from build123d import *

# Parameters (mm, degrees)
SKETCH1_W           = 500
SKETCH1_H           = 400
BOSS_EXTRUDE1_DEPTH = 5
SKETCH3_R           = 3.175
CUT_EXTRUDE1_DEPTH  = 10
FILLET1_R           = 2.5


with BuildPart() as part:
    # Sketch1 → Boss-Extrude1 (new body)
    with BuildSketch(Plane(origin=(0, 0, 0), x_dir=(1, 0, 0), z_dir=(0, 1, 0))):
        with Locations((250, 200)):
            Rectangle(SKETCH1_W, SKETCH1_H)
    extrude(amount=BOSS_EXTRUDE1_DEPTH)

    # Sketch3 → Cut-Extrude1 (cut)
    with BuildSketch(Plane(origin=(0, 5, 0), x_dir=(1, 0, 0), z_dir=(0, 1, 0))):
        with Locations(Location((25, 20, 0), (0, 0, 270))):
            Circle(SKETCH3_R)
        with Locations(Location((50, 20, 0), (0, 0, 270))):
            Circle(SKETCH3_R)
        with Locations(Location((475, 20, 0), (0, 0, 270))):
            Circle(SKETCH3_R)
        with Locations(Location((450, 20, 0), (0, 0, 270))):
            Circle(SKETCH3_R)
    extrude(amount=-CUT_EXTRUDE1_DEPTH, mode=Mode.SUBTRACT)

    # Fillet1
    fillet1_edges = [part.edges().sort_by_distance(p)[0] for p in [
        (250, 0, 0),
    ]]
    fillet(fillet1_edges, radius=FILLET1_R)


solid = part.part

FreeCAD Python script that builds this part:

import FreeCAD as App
import Part
import Sketcher

V = App.Vector
Q = App.Units.Quantity


def edges_at(feature, points):
    """Names of the edges that pass closest to the given points."""
    edges = feature.Shape.Edges
    near = lambda p: min(range(len(edges)), key=lambda i: edges[i].distToShape(Part.Vertex(*p))[0])
    return sorted({f"Edge{near(p) + 1}" for p in points})


def add_polygon(sketch, points):
    """Adds a closed chain of lines whose ends are joined by coincident constraints."""
    first, n = sketch.GeometryCount, len(points)
    for a, b in zip(points, points[1:] + points[:1]):
        sketch.addGeometry(Part.LineSegment(App.Vector(*a, 0), App.Vector(*b, 0)), False)
    for i in range(n):
        sketch.addConstraint(Sketcher.Constraint("Coincident", first + i, 2, first + (i + 1) % n, 1))

doc = App.newDocument("Part")
body = doc.addObject("PartDesign::Body", "Body")

sketch1 = body.newObject("Sketcher::SketchObject", "Sketch")
sketch1.AttachmentSupport = (doc.getObject("XZ_Plane"), [""])
sketch1.MapMode = "FlatFace"
add_polygon(sketch1, [(0, -400), (0, 0), (500, 0), (500, -400)])
sketch1.addConstraint([
    Sketcher.Constraint("Vertical", 0),
    Sketcher.Constraint("Horizontal", 1),
    Sketcher.Constraint("Vertical", 2),
    Sketcher.Constraint("Horizontal", 3),
    Sketcher.Constraint("Coincident", 0, 2, -1, 1),
    Sketcher.Constraint("DistanceX", 1, 1, 1, 2, Q("500 mm")),
    Sketcher.Constraint("DistanceY", 0, 1, 0, 2, Q("400 mm")),
])
pad1 = body.newObject("PartDesign::Pad", "Pad")
pad1.Profile = sketch1
pad1.Length = 5
pad1.Reversed = True

sketch2 = body.newObject("Sketcher::SketchObject", "Sketch001")
sketch2.AttachmentSupport = (doc.getObject("XZ_Plane"), [""])
sketch2.MapMode = "FlatFace"
sketch2.AttachmentOffset = App.Placement(V(0, 0, -5), App.Rotation())
sketch2.addGeometry([
    Part.Circle(V(25, -20, 0), V(0, 0, 1), 3.2),
    Part.Circle(V(50, -20, 0), V(0, 0, 1), 3.2),
    Part.Circle(V(475, -20, 0), V(0, 0, 1), 3.2),
    Part.Circle(V(450, -20, 0), V(0, 0, 1), 3.2),
], False)
sketch2.addConstraint([
    Sketcher.Constraint("Equal", 0, 1),
    Sketcher.Constraint("Equal", 1, 2),
    Sketcher.Constraint("Equal", 2, 3),
    Sketcher.Constraint("Horizontal", 0, 3, 1, 3),
    Sketcher.Constraint("Horizontal", 1, 3, 2, 3),
    Sketcher.Constraint("Horizontal", 2, 3, 3, 3),
    Sketcher.Constraint("Diameter", 0, Q("6.35 mm")),
    Sketcher.Constraint("DistanceX", -1, 1, 0, 3, Q("25 mm")),
    Sketcher.Constraint("DistanceY", 0, 3, -1, 1, Q("20 mm")),
    Sketcher.Constraint("DistanceX", -1, 1, 1, 3, Q("50 mm")),
    Sketcher.Constraint("DistanceX", -1, 1, 2, 3, Q("475 mm")),
    Sketcher.Constraint("DistanceX", -1, 1, 3, 3, Q("450 mm")),
])
pocket1 = body.newObject("PartDesign::Pocket", "Pocket")
pocket1.Profile = sketch2
pocket1.Length = 10
pocket1.Reversed = True
doc.recompute()

fillet = body.newObject("PartDesign::Fillet", "Fillet")
fillet.Base = (pocket1, edges_at(pocket1, [(250, 0, 0)]))
fillet.Radius = 2.5

doc.recompute()
